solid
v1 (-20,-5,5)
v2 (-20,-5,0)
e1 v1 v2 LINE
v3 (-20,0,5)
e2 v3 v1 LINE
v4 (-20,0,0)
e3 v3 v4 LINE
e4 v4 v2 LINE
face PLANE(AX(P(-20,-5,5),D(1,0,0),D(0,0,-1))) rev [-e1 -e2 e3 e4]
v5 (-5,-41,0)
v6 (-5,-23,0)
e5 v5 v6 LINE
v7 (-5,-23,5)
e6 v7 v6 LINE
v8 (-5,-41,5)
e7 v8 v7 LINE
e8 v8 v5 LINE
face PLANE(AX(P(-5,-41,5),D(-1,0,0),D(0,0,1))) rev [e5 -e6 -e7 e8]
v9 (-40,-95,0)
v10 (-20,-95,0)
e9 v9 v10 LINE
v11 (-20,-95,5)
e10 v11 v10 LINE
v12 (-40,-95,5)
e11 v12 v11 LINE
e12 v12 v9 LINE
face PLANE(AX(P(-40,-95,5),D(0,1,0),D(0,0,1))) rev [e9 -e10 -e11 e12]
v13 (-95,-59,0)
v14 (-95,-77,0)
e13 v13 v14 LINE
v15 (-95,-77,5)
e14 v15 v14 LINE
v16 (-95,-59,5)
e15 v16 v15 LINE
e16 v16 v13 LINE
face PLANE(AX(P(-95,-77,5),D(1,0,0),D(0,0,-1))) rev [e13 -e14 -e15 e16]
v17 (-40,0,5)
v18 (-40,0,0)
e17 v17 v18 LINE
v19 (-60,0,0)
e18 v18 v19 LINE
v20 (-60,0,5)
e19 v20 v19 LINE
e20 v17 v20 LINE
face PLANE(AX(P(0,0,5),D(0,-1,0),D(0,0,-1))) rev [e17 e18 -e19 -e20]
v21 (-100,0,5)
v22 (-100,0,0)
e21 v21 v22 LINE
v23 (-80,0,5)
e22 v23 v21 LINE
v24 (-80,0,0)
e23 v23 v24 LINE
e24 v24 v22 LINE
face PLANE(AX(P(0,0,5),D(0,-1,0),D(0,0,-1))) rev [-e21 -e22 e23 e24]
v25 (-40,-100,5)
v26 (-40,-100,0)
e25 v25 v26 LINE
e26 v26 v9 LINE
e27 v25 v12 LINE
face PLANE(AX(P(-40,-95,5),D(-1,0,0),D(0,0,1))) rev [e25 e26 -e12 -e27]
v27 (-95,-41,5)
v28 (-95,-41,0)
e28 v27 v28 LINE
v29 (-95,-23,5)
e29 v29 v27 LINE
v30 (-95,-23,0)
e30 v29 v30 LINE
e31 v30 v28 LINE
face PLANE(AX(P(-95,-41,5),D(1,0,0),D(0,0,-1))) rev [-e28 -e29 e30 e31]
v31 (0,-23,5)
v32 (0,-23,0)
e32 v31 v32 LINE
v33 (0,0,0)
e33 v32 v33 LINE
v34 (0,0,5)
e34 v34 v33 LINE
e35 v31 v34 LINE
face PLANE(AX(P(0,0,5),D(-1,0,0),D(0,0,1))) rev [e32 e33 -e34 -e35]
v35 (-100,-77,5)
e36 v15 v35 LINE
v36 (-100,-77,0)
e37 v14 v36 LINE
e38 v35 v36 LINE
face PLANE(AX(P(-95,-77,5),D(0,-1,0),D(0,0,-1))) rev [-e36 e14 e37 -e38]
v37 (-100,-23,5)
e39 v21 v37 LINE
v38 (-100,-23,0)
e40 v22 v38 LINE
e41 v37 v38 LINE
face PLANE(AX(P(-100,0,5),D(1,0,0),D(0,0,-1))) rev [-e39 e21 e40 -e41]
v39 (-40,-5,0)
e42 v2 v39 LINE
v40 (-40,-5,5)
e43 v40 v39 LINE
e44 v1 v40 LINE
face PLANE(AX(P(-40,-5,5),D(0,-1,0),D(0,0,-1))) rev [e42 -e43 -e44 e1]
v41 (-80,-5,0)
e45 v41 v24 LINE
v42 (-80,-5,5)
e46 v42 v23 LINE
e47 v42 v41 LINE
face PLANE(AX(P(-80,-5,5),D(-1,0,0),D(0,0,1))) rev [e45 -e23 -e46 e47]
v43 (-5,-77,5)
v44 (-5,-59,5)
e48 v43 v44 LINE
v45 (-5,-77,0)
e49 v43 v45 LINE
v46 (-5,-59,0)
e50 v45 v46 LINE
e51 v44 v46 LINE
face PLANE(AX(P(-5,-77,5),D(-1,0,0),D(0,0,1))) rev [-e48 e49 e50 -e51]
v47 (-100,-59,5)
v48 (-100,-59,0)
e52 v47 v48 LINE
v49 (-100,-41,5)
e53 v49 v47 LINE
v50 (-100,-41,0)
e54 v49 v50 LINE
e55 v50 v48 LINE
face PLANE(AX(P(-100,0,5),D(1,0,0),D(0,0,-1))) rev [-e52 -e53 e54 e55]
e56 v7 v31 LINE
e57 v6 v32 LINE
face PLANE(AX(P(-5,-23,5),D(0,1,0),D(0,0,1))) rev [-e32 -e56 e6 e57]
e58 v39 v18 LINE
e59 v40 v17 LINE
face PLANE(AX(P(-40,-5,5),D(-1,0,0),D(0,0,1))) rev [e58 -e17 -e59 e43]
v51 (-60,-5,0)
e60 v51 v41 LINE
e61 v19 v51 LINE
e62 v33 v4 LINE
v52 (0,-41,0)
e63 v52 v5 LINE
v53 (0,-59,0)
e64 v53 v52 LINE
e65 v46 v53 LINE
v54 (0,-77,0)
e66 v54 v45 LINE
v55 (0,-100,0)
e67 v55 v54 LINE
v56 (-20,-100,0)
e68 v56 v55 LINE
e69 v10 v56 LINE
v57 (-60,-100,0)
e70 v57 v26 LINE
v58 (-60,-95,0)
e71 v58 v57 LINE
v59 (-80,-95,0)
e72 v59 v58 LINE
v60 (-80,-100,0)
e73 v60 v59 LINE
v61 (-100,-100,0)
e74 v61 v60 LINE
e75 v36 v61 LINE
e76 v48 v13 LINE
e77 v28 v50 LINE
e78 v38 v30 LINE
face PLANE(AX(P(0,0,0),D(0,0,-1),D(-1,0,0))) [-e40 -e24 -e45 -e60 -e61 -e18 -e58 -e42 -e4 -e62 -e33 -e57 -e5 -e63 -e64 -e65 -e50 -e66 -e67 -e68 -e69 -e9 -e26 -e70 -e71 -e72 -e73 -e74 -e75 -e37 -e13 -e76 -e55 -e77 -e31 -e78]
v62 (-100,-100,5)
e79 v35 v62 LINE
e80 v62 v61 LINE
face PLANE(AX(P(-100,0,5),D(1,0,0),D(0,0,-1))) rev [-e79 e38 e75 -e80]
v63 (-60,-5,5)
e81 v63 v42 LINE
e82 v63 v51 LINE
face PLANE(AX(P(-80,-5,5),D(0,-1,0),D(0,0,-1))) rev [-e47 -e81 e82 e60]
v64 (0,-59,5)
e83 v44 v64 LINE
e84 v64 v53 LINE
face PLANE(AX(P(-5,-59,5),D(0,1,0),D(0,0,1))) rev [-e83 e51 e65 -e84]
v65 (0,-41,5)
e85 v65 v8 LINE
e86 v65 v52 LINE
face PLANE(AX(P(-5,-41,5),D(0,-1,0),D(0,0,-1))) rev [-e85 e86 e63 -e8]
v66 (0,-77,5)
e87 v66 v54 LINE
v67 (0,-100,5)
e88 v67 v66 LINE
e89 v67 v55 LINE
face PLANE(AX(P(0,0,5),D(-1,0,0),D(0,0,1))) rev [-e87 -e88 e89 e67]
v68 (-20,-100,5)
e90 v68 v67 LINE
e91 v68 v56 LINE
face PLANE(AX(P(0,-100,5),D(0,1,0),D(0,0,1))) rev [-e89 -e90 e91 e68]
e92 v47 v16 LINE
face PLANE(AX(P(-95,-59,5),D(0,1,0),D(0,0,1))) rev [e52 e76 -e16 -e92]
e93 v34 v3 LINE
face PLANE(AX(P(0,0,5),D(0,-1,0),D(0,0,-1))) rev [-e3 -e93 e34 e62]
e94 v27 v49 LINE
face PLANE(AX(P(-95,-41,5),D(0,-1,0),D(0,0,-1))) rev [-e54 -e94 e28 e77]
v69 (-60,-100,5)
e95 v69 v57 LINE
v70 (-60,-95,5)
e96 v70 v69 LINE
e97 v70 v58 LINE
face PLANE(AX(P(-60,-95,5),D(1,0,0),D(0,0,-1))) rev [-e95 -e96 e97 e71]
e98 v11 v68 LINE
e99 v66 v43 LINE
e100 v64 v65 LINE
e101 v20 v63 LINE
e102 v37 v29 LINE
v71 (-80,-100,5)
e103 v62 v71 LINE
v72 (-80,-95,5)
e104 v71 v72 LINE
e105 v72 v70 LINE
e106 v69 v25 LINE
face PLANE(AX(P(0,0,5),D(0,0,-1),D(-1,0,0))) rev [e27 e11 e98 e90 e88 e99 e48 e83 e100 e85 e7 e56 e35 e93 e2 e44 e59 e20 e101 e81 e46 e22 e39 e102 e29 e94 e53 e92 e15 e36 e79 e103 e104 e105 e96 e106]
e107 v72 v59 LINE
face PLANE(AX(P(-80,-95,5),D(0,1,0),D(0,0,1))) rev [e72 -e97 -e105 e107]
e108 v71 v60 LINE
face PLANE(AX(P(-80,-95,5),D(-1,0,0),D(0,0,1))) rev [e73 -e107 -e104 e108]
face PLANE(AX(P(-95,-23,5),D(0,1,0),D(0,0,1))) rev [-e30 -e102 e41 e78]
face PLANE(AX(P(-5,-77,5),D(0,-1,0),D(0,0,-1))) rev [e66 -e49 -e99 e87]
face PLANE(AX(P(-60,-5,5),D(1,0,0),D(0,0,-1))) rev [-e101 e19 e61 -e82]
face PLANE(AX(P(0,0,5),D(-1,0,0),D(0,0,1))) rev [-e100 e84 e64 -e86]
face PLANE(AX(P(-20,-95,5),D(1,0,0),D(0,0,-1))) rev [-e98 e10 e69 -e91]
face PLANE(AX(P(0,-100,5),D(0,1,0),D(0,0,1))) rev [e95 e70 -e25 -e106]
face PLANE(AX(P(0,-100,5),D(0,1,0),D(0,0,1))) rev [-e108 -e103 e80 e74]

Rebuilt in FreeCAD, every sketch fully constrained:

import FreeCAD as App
import Part
import Sketcher

doc = App.newDocument("Part")
body = doc.addObject("PartDesign::Body", "Body")

# Sketch on XY plane
sketch1 = body.newObject("Sketcher::SketchObject", "Sketch")
sketch1.AttachmentSupport = (doc.getObject("XY_Plane"), [""])
sketch1.MapMode = "FlatFace"
sketch1.addGeometry([
    Part.LineSegment(App.Vector(-100, 0, 0), App.Vector(-100, -100, 0)),
    Part.LineSegment(App.Vector(-100, -100, 0), App.Vector(0, -100, 0)),
    Part.LineSegment(App.Vector(0, -100, 0), App.Vector(0, 0, 0)),
    Part.LineSegment(App.Vector(0, 0, 0), App.Vector(-100, 0, 0)),
], False)
sketch1.addConstraint([
    Sketcher.Constraint("Coincident", 0, 2, 1, 1),
    Sketcher.Constraint("Coincident", 1, 2, 2, 1),
    Sketcher.Constraint("Coincident", 2, 2, 3, 1),
    Sketcher.Constraint("Coincident", 3, 2, 0, 1),
    Sketcher.Constraint("Vertical", 0),
    Sketcher.Constraint("Horizontal", 1),
    Sketcher.Constraint("Vertical", 2),
    Sketcher.Constraint("Horizontal", 3),
    Sketcher.Constraint("Coincident", 2, 2, -1, 1),
    Sketcher.Constraint("Equal", 3, 0),
    Sketcher.Constraint("DistanceX", 1, 1, 1, 2, 100.0),
])
pad1 = body.newObject("PartDesign::Pad", "Pad")
pad1.Profile = sketch1
pad1.Length = 5

# Sketch on XY plane
sketch2 = body.newObject("Sketcher::SketchObject", "Sketch001")
sketch2.AttachmentSupport = (doc.getObject("XY_Plane"), [""])
sketch2.MapMode = "FlatFace"
sketch2.addGeometry([
    Part.LineSegment(App.Vector(-60, -95, 0), App.Vector(-60, -100, 0)),  # 0
    Part.LineSegment(App.Vector(-60, -100, 0), App.Vector(-80, -100, 0)),  # 1
    Part.LineSegment(App.Vector(-80, -100, 0), App.Vector(-80, -95, 0)),  # 2
    Part.LineSegment(App.Vector(-80, -95, 0), App.Vector(-60, -95, 0)),  # 3
    Part.LineSegment(App.Vector(-20, -95, 0), App.Vector(-20, -100, 0)),  # 4
    Part.LineSegment(App.Vector(-20, -100, 0), App.Vector(-40, -100, 0)),  # 5
    Part.LineSegment(App.Vector(-40, -100, 0), App.Vector(-40, -95, 0)),  # 6
    Part.LineSegment(App.Vector(-40, -95, 0), App.Vector(-20, -95, 0)),  # 7
    Part.LineSegment(App.Vector(-20, 0, 0), App.Vector(-20, -5, 0)),  # 8
    Part.LineSegment(App.Vector(-20, -5, 0), App.Vector(-40, -5, 0)),  # 9
    Part.LineSegment(App.Vector(-40, -5, 0), App.Vector(-40, 0, 0)),  # 10
    Part.LineSegment(App.Vector(-40, 0, 0), App.Vector(-20, 0, 0)),  # 11
    Part.LineSegment(App.Vector(-60, 0, 0), App.Vector(-60, -5, 0)),  # 12
    Part.LineSegment(App.Vector(-60, -5, 0), App.Vector(-80, -5, 0)),  # 13
    Part.LineSegment(App.Vector(-80, -5, 0), App.Vector(-80, 0, 0)),  # 14
    Part.LineSegment(App.Vector(-80, 0, 0), App.Vector(-60, 0, 0)),  # 15
    Part.LineSegment(App.Vector(-95, -59, 0), App.Vector(-95, -77, 0)),  # 16
    Part.LineSegment(App.Vector(-95, -77, 0), App.Vector(-100, -77, 0)),  # 17
    Part.LineSegment(App.Vector(-100, -77, 0), App.Vector(-100, -59, 0)),  # 18
    Part.LineSegment(App.Vector(-100, -59, 0), App.Vector(-95, -59, 0)),  # 19
    Part.LineSegment(App.Vector(-95, -23, 0), App.Vector(-95, -41, 0)),  # 20
    Part.LineSegment(App.Vector(-95, -41, 0), App.Vector(-100, -41, 0)),  # 21
    Part.LineSegment(App.Vector(-100, -41, 0), App.Vector(-100, -23, 0)),  # 22
    Part.LineSegment(App.Vector(-100, -23, 0), App.Vector(-95, -23, 0)),  # 23
    Part.LineSegment(App.Vector(0, -23, 0), App.Vector(0, -41, 0)),  # 24
    Part.LineSegment(App.Vector(0, -41, 0), App.Vector(-5, -41, 0)),  # 25
    Part.LineSegment(App.Vector(-5, -41, 0), App.Vector(-5, -23, 0)),  # 26
    Part.LineSegment(App.Vector(-5, -23, 0), App.Vector(0, -23, 0)),  # 27
    Part.LineSegment(App.Vector(0, -59, 0), App.Vector(0, -77, 0)),  # 28
    Part.LineSegment(App.Vector(0, -77, 0), App.Vector(-5, -77, 0)),  # 29
    Part.LineSegment(App.Vector(-5, -77, 0), App.Vector(-5, -59, 0)),  # 30
    Part.LineSegment(App.Vector(-5, -59, 0), App.Vector(0, -59, 0)),  # 31
], False)
sketch2.addConstraint([
    Sketcher.Constraint("Coincident", 0, 2, 1, 1),
    Sketcher.Constraint("Coincident", 1, 2, 2, 1),
    Sketcher.Constraint("Coincident", 2, 2, 3, 1),
    Sketcher.Constraint("Coincident", 3, 2, 0, 1),
    Sketcher.Constraint("Coincident", 4, 2, 5, 1),
    Sketcher.Constraint("Coincident", 5, 2, 6, 1),
    Sketcher.Constraint("Coincident", 6, 2, 7, 1),
    Sketcher.Constraint("Coincident", 7, 2, 4, 1),
    Sketcher.Constraint("Coincident", 8, 2, 9, 1),
    Sketcher.Constraint("Coincident", 9, 2, 10, 1),
    Sketcher.Constraint("Coincident", 10, 2, 11, 1),
    Sketcher.Constraint("Coincident", 11, 2, 8, 1),
    Sketcher.Constraint("Coincident", 12, 2, 13, 1),
    Sketcher.Constraint("Coincident", 13, 2, 14, 1),
    Sketcher.Constraint("Coincident", 14, 2, 15, 1),
    Sketcher.Constraint("Coincident", 15, 2, 12, 1),
    Sketcher.Constraint("Coincident", 16, 2, 17, 1),
    Sketcher.Constraint("Coincident", 17, 2, 18, 1),
    Sketcher.Constraint("Coincident", 18, 2, 19, 1),
    Sketcher.Constraint("Coincident", 19, 2, 16, 1),
    Sketcher.Constraint("Coincident", 20, 2, 21, 1),
    Sketcher.Constraint("Coincident", 21, 2, 22, 1),
    Sketcher.Constraint("Coincident", 22, 2, 23, 1),
    Sketcher.Constraint("Coincident", 23, 2, 20, 1),
    Sketcher.Constraint("Coincident", 24, 2, 25, 1),
    Sketcher.Constraint("Coincident", 25, 2, 26, 1),
    Sketcher.Constraint("Coincident", 26, 2, 27, 1),
    Sketcher.Constraint("Coincident", 27, 2, 24, 1),
    Sketcher.Constraint("Coincident", 28, 2, 29, 1),
    Sketcher.Constraint("Coincident", 29, 2, 30, 1),
    Sketcher.Constraint("Coincident", 30, 2, 31, 1),
    Sketcher.Constraint("Coincident", 31, 2, 28, 1),
    Sketcher.Constraint("Vertical", 0),
    Sketcher.Constraint("Horizontal", 1),
    Sketcher.Constraint("Vertical", 2),
    Sketcher.Constraint("Horizontal", 3),
    Sketcher.Constraint("Vertical", 4),
    Sketcher.Constraint("Horizontal", 5),
    Sketcher.Constraint("Vertical", 6),
    Sketcher.Constraint("Horizontal", 7),
    Sketcher.Constraint("Vertical", 8),
    Sketcher.Constraint("Horizontal", 9),
    Sketcher.Constraint("Vertical", 10),
    Sketcher.Constraint("Horizontal", 11),
    Sketcher.Constraint("Vertical", 12),
    Sketcher.Constraint("Horizontal", 13),
    Sketcher.Constraint("Vertical", 14),
    Sketcher.Constraint("Horizontal", 15),
    Sketcher.Constraint("Vertical", 16),
    Sketcher.Constraint("Horizontal", 17),
    Sketcher.Constraint("Vertical", 18),
    Sketcher.Constraint("Horizontal", 19),
    Sketcher.Constraint("Vertical", 20),
    Sketcher.Constraint("Horizontal", 21),
    Sketcher.Constraint("Vertical", 22),
    Sketcher.Constraint("Horizontal", 23),
    Sketcher.Constraint("Vertical", 24),
    Sketcher.Constraint("Horizontal", 25),
    Sketcher.Constraint("Vertical", 26),
    Sketcher.Constraint("Horizontal", 27),
    Sketcher.Constraint("Vertical", 28),
    Sketcher.Constraint("Horizontal", 29),
    Sketcher.Constraint("Vertical", 30),
    Sketcher.Constraint("Horizontal", 31),
    Sketcher.Constraint("PointOnObject", 10, 2, -1),
    Sketcher.Constraint("PointOnObject", 14, 2, -1),
    Sketcher.Constraint("PointOnObject", 24, 2, -2),
    Sketcher.Constraint("PointOnObject", 28, 2, -2),
    Sketcher.Constraint("Horizontal", 1, 2, 4, 2),
    Sketcher.Constraint("Horizontal", 3, 2, 6, 2),
    Sketcher.Constraint("Horizontal", 9, 2, 12, 2),
    Sketcher.Constraint("Horizontal", 21, 2, 24, 2),
    Sketcher.Constraint("Horizontal", 23, 2, 26, 2),
    Sketcher.Constraint("Horizontal", 17, 2, 28, 2),
    Sketcher.Constraint("Horizontal", 19, 2, 30, 2),
    Sketcher.Constraint("Vertical", 7, 2, 8, 2),
    Sketcher.Constraint("Vertical", 6, 2, 9, 2),
    Sketcher.Constraint("Vertical", 3, 2, 12, 2),
    Sketcher.Constraint("Vertical", 2, 2, 13, 2),
    Sketcher.Constraint("Vertical", 19, 2, 20, 2),
    Sketcher.Constraint("Vertical", 18, 2, 21, 2),
    Sketcher.Constraint("Vertical", 26, 2, 29, 2),
    Sketcher.Constraint("Equal", 3, 5),
    Sketcher.Constraint("Equal", 23, 25),
    Sketcher.Constraint("Equal", 31, 0),
    Sketcher.Constraint("Equal", 6, 8),
    Sketcher.Constraint("Equal", 18, 20),
    Sketcher.Constraint("DistanceX", 1, 2, 1, 1, 20.0),
    Sketcher.Constraint("DistanceX", 17, 2, 17, 1, 5.0),
    Sketcher.Constraint("DistanceY", 16, 2, 16, 1, 18.0),
    Sketcher.Constraint("DistanceX", 0, 2, -1, 1, 60.0),
    Sketcher.Constraint("DistanceY", 0, 2, -1, 1, 100.0),
    Sketcher.Constraint("DistanceX", 4, 2, -1, 1, 20.0),
    Sketcher.Constraint("DistanceX", 16, 2, -1, 1, 95.0),
    Sketcher.Constraint("DistanceY", 16, 2, -1, 1, 77.0),
    Sketcher.Constraint("DistanceY", 20, 2, -1, 1, 41.0),
])
pocket1 = body.newObject("PartDesign::Pocket", "Pocket")
pocket1.Profile = sketch2
pocket1.Length = 5
pocket1.Reversed = True

doc.recompute()
